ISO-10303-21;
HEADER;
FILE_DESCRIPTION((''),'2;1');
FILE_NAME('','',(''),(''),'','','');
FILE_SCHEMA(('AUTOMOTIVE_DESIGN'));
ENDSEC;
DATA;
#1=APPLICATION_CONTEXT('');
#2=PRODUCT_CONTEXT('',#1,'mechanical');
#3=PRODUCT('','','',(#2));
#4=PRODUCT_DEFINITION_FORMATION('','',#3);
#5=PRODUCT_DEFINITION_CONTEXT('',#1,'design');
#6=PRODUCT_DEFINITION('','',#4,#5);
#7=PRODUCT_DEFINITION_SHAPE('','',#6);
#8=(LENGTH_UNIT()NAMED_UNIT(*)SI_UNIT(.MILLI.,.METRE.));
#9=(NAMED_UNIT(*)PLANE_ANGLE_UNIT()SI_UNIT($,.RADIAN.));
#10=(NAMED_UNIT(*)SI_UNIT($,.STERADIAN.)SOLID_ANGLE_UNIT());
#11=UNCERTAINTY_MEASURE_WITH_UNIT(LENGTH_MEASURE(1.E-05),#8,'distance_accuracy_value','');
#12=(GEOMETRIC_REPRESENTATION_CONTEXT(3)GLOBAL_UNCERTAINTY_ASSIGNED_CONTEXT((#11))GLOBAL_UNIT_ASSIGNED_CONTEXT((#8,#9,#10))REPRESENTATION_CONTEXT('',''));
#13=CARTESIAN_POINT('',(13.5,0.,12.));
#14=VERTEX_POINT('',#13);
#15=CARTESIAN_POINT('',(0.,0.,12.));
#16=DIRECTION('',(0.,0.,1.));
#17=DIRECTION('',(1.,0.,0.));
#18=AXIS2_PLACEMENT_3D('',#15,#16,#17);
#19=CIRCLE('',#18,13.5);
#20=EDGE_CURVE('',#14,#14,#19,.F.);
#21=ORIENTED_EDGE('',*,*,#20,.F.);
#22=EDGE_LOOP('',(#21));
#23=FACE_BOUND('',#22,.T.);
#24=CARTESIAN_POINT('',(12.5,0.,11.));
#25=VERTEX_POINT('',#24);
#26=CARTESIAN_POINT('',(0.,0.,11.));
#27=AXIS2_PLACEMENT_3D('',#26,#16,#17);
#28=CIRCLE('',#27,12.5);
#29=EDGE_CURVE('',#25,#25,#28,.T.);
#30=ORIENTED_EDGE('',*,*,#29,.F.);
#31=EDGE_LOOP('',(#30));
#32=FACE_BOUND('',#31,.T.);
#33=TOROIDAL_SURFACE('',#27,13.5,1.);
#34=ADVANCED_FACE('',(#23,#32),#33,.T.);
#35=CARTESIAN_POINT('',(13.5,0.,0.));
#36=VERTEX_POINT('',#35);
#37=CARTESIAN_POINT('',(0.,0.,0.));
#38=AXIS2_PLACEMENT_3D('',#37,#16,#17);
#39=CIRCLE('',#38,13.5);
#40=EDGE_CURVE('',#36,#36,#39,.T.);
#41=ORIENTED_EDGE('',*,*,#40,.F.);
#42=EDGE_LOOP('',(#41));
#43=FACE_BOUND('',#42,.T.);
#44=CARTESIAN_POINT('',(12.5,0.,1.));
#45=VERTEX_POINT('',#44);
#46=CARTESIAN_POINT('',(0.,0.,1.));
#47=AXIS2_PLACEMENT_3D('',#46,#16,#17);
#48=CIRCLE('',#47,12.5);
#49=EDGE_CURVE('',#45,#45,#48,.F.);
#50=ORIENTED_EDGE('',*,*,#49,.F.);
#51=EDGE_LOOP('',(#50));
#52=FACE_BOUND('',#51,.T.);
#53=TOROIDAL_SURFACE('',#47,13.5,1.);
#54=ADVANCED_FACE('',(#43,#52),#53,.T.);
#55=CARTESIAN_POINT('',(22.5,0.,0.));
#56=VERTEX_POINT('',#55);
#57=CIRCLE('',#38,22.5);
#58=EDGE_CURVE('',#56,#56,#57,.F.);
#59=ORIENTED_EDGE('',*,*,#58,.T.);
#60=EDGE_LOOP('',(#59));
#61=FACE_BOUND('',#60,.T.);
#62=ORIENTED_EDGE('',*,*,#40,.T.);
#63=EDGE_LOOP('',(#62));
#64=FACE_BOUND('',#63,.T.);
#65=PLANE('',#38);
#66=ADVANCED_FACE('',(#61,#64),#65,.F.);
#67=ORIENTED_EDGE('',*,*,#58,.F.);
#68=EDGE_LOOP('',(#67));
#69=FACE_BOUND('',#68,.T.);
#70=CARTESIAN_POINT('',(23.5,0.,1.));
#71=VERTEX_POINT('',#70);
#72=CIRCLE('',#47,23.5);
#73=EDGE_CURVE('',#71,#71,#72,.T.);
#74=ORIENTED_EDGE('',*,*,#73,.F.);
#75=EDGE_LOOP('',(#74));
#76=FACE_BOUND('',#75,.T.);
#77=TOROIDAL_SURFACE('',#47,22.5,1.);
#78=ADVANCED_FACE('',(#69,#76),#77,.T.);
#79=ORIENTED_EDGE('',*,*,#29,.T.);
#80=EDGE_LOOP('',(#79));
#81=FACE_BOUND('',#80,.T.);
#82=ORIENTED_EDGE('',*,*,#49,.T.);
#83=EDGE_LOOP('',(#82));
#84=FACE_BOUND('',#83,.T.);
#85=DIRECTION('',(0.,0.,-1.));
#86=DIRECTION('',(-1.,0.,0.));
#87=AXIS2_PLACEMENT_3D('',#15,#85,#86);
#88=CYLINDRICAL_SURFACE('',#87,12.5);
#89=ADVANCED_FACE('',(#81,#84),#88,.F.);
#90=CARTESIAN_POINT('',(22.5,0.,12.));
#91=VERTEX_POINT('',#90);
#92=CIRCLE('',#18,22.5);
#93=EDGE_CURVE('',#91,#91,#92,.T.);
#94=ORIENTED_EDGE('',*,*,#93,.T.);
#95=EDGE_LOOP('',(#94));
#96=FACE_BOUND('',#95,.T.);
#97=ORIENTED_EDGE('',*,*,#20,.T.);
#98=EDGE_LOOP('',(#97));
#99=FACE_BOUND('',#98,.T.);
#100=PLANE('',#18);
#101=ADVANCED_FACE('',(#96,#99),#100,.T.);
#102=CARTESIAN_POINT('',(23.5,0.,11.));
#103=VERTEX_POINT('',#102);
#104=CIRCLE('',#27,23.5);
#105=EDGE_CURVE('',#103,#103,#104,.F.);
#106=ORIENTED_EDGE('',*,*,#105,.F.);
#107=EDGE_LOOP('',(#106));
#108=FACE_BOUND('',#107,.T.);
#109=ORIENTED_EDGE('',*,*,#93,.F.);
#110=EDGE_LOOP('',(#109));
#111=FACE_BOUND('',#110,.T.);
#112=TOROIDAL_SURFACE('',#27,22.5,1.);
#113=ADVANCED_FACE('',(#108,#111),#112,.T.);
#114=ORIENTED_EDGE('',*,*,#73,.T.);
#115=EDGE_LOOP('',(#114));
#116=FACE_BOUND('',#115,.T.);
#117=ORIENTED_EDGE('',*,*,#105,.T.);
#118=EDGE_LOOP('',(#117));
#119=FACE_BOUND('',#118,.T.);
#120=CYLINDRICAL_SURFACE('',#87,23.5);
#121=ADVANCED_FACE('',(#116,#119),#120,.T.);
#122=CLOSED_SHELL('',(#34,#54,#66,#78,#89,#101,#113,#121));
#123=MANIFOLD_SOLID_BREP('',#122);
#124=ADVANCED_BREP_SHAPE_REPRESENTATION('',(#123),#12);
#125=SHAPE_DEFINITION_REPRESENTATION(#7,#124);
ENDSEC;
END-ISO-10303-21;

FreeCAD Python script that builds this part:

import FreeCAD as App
import Part
import Sketcher
from FreeCAD import Vector


def edges_at(feature, points):
    """Names of the edges that pass closest to the given points."""
    edges = feature.Shape.Edges
    near = lambda p: min(range(len(edges)), key=lambda i: edges[i].distToShape(Part.Vertex(*p))[0])
    return sorted({f"Edge{near(p) + 1}" for p in points})

doc = App.newDocument("Part")
body = doc.addObject("PartDesign::Body", "Body")

# Sketch on XY plane
sketch1 = body.newObject("Sketcher::SketchObject", "Sketch")
sketch1.AttachmentSupport = (doc.getObject("XY_Plane"), [""])
sketch1.MapMode = "FlatFace"
sketch1.addGeometry([
    Part.Circle(Vector(0, 0, 0), Vector(0, 0, 1), 24),
    Part.Circle(Vector(0, 0, 0), Vector(0, 0, 1), 12),
], False)
sketch1.addConstraint([
    Sketcher.Constraint("Coincident", 0, 3, -1, 1),
    Sketcher.Constraint("Coincident", 1, 3, -1, 1),
    Sketcher.Constraint("Diameter", 0, 47.0),
    Sketcher.Constraint("Diameter", 1, 25.0),
])
pad1 = body.newObject("PartDesign::Pad", "Pad")
pad1.Profile = sketch1
pad1.Length = 12
doc.recompute()

fillet = body.newObject("PartDesign::Fillet", "Fillet")
fillet.Base = (pad1, edges_at(pad1, [
    (-23.5, 0, 0),
    (-23.5, 0, 12),
    (-12.5, 0, 0),
    (-12.5, 0, 12),
]))
fillet.Radius = 1

doc.recompute()
